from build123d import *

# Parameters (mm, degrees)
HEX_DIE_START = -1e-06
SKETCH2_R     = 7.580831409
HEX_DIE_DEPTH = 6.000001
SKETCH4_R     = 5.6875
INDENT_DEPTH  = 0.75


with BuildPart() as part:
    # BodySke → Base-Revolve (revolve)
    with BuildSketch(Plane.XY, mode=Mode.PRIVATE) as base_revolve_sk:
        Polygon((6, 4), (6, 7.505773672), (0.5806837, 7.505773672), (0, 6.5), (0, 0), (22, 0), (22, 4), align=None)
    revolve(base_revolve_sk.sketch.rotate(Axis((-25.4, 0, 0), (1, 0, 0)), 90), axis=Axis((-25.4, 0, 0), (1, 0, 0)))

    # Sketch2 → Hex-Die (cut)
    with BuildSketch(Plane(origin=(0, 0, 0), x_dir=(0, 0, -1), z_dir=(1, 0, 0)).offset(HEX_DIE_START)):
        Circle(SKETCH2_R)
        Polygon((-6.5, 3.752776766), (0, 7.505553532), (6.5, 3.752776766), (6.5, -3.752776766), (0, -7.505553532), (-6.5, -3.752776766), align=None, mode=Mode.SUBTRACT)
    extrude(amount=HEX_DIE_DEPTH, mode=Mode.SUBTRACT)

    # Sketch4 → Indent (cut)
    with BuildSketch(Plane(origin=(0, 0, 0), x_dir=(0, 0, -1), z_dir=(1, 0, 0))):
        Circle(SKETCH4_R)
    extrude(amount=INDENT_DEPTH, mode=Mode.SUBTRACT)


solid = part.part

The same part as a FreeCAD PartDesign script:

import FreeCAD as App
import Part
import Sketcher

V = App.Vector
Q = App.Units.Quantity


def add_polygon(sketch, points):
    """Adds a closed chain of lines whose ends are joined by coincident constraints."""
    first, n = sketch.GeometryCount, len(points)
    for a, b in zip(points, points[1:] + points[:1]):
        sketch.addGeometry(Part.LineSegment(App.Vector(*a, 0), App.Vector(*b, 0)), False)
    for i in range(n):
        sketch.addConstraint(Sketcher.Constraint("Coincident", first + i, 2, first + (i + 1) % n, 1))

doc = App.newDocument("Part")
body = doc.addObject("PartDesign::Body", "Body")

# Sketch on XY plane
sketch1 = body.newObject("Sketcher::SketchObject", "Sketch")
sketch1.AttachmentSupport = (doc.getObject("XY_Plane"), [""])
sketch1.MapMode = "FlatFace"
add_polygon(sketch1, [(6, 4), (6, 7.5), (0.6, 7.5), (0, 6.5), (0, 0), (22, 0), (22, 4)])  # lines 0-6
sketch1.addConstraint([
    Sketcher.Constraint("Vertical", 0),
    Sketcher.Constraint("Horizontal", 1),
    Sketcher.Constraint("Vertical", 3),
    Sketcher.Constraint("Horizontal", 4),
    Sketcher.Constraint("Vertical", 5),
    Sketcher.Constraint("Horizontal", 6),
    Sketcher.Constraint("Coincident", 3, 2, -1, 1),
    Sketcher.Constraint("DistanceX", 4, 1, 4, 2, Q("22 mm")),
    Sketcher.Constraint("DistanceX", 6, 2, 6, 1, Q("16 mm")),
    Sketcher.Constraint("DistanceY", 5, 1, 5, 2, Q("4 mm")),
    Sketcher.Constraint("Angle", 2, Q("-120 deg")),
    Sketcher.Constraint("DistanceY", 3, 2, 3, 1, Q("6.5 mm")),
    Sketcher.Constraint("DistanceX", 1, 2, 1, 1, Q("5.419316 mm")),
])
revolution = body.newObject("PartDesign::Revolution", "Revolution")
revolution.Profile = sketch1
revolution.ReferenceAxis = (sketch1, ["H_Axis"])
revolution.Angle = 360

# Sketch on YZ plane
sketch2 = body.newObject("Sketcher::SketchObject", "Sketch001")
sketch2.AttachmentSupport = (doc.getObject("YZ_Plane"), [""])
sketch2.MapMode = "FlatFace"
sketch2.AttachmentOffset = App.Placement(V(0, 0, -0.000001), App.Rotation())
sketch2.addGeometry(Part.Circle(V(0, 0, 0), V(0, 0, 1), 8), False)  # 0
add_polygon(sketch2, [(-4, 6), (4, 6), (8, 0), (4, -6), (-4, -6), (-8, 0)])  # lines 1-6
sketch2.addConstraint([
    Sketcher.Constraint("Horizontal", 1),
    Sketcher.Constraint("Horizontal", 4),
    Sketcher.Constraint("Coincident", 0, 3, -1, 1),
    Sketcher.Constraint("Symmetric", 1, 2, 4, 2, -1, 1),
    Sketcher.Constraint("Symmetric", 2, 2, 5, 2, -1, 1),
    Sketcher.Constraint("PointOnObject", 2, 2, -1),
    Sketcher.Constraint("Parallel", 3, 6),
    Sketcher.Constraint("Vertical", 1, 2, 3, 2),
    Sketcher.Constraint("Angle", 2, Q("-60 deg")),
    Sketcher.Constraint("DistanceY", 3, 2, 1, 2, Q("13 mm")),
    Sketcher.Constraint("Diameter", 0, Q("15.161663 mm")),
    Sketcher.Constraint("DistanceX", 1, 1, 1, 2, Q("7.505554 mm")),
])
pocket1 = body.newObject("PartDesign::Pocket", "Pocket")
pocket1.Profile = sketch2
pocket1.Length = 6.000001
pocket1.Reversed = True

# Sketch on YZ plane
sketch3 = body.newObject("Sketcher::SketchObject", "Sketch002")
sketch3.AttachmentSupport = (doc.getObject("YZ_Plane"), [""])
sketch3.MapMode = "FlatFace"
sketch3.addGeometry(Part.Circle(V(0, 0, 0), V(0, 0, 1), 6), False)
sketch3.addConstraint([
    Sketcher.Constraint("Coincident", 0, 3, -1, 1),
    Sketcher.Constraint("Diameter", 0, Q("11.375 mm")),
])
pocket2 = body.newObject("PartDesign::Pocket", "Pocket001")
pocket2.Profile = sketch3
pocket2.Length = 0.75
pocket2.Reversed = True

doc.recompute()
